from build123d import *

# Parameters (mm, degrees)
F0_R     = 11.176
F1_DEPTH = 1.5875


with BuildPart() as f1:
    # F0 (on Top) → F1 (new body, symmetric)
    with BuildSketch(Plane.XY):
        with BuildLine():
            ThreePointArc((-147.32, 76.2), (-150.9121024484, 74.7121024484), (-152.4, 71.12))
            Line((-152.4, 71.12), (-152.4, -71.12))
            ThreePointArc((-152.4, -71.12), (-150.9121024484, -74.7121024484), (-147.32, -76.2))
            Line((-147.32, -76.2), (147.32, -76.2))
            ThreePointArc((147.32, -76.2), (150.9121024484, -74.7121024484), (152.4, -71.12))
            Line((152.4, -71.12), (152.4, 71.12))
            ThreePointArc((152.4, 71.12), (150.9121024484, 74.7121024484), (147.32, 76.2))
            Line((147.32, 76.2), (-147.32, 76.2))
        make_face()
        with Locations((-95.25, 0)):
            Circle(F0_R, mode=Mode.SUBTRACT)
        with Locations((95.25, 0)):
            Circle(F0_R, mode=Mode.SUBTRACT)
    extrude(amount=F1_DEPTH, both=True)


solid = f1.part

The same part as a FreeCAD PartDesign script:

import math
import FreeCAD as App
import Part
import Sketcher
Q = App.Units.Quantity

doc = App.newDocument("Part")
params = doc.addObject("Spreadsheet::Sheet", "Params")
for row, (alias, value) in enumerate([
    ("sketch1_radius", "0.2 in"),
    ("sketch1_diameter", "0.88 in"),
    ("sketch1_width", "11.6 in"),
    ("sketch1_height", "5.6 in"),
    ("pad1_length", "0.125 in"),
], start=1):
    params.set(f"A{row}", alias)
    params.set(f"B{row}", "=" + value)
    params.setAlias(f"B{row}", alias)

body = doc.addObject("PartDesign::Body", "Body")

sketch1 = body.newObject("Sketcher::SketchObject", "Sketch")
sketch1.AttachmentSupport = (doc.getObject("XY_Plane"), [""])
sketch1.MapMode = "FlatFace"
sketch1.addGeometry(Part.ArcOfCircle(Part.Circle(App.Vector(-147, 71, 0), App.Vector(0, 0, 1), 5), math.radians(90), math.radians(180)), False)
sketch1.addGeometry(Part.LineSegment(App.Vector(-152, 71, 0), App.Vector(-152, -71, 0)), False)
sketch1.addGeometry(Part.ArcOfCircle(Part.Circle(App.Vector(-147, -71, 0), App.Vector(0, 0, 1), 5), math.radians(180), math.radians(270)), False)
sketch1.addGeometry(Part.LineSegment(App.Vector(-147, -76, 0), App.Vector(147, -76, 0)), False)
sketch1.addGeometry(Part.ArcOfCircle(Part.Circle(App.Vector(147, -71, 0), App.Vector(0, 0, 1), 5), math.radians(-90), math.radians(0)), False)
sketch1.addGeometry(Part.LineSegment(App.Vector(152, -71, 0), App.Vector(152, 71, 0)), False)
sketch1.addGeometry(Part.ArcOfCircle(Part.Circle(App.Vector(147, 71, 0), App.Vector(0, 0, 1), 5), math.radians(0), math.radians(90)), False)
sketch1.addGeometry(Part.LineSegment(App.Vector(147, 76, 0), App.Vector(-147, 76, 0)), False)
sketch1.addGeometry(Part.Circle(App.Vector(-95, 0, 0), App.Vector(0, 0, 1), 11), False)
sketch1.addGeometry(Part.Circle(App.Vector(95, 0, 0), App.Vector(0, 0, 1), 11), False)
sketch1.addConstraint(Sketcher.Constraint("Tangent", 0, 2, 1, 1))
sketch1.addConstraint(Sketcher.Constraint("Tangent", 1, 2, 2, 1))
sketch1.addConstraint(Sketcher.Constraint("Tangent", 2, 2, 3, 1))
sketch1.addConstraint(Sketcher.Constraint("Tangent", 3, 2, 4, 1))
sketch1.addConstraint(Sketcher.Constraint("Tangent", 4, 2, 5, 1))
sketch1.addConstraint(Sketcher.Constraint("Tangent", 5, 2, 6, 1))
sketch1.addConstraint(Sketcher.Constraint("Tangent", 6, 2, 7, 1))
sketch1.addConstraint(Sketcher.Constraint("Tangent", 7, 2, 0, 1))
sketch1.addConstraint(Sketcher.Constraint("Vertical", 1))
sketch1.addConstraint(Sketcher.Constraint("Horizontal", 3))
sketch1.addConstraint(Sketcher.Constraint("Vertical", 5))
sketch1.addConstraint(Sketcher.Constraint("Horizontal", 7))
sketch1.addConstraint(Sketcher.Constraint("Equal", 0, 2))
sketch1.addConstraint(Sketcher.Constraint("Equal", 2, 4))
sketch1.addConstraint(Sketcher.Constraint("Equal", 4, 6))
sketch1.addConstraint(Sketcher.Constraint("Equal", 8, 9))
sketch1.addConstraint(Sketcher.Constraint("Symmetric", 0, 3, 4, 3, -1, 1))
sketch1.addConstraint(Sketcher.Constraint("Symmetric", 8, 3, 9, 3, -1, 1))
sketch1.addConstraint(Sketcher.Constraint("PointOnObject", 8, 3, -1))
sketch1.addConstraint(Sketcher.Constraint("Radius", 0, Q("0.2 in")))
sketch1.addConstraint(Sketcher.Constraint("Diameter", 8, Q("0.88 in")))
sketch1.addConstraint(Sketcher.Constraint("DistanceX", 3, 1, 3, 2, Q("11.6 in")))
sketch1.addConstraint(Sketcher.Constraint("DistanceY", 1, 2, 1, 1, Q("5.6 in")))
sketch1.addConstraint(Sketcher.Constraint("DistanceX", 8, 3, 9, 3, Q("7.5 in")))
sketch1.setExpression("Constraints[19]", "Params.sketch1_radius")
sketch1.setExpression("Constraints[20]", "Params.sketch1_diameter")
sketch1.setExpression("Constraints[21]", "Params.sketch1_width")
sketch1.setExpression("Constraints[22]", "Params.sketch1_height")
pad1 = body.newObject("PartDesign::Pad", "Pad")
pad1.Profile = sketch1
pad1.setExpression("Length", "Params.pad1_length")
pad1.Midplane = True

doc.recompute()
